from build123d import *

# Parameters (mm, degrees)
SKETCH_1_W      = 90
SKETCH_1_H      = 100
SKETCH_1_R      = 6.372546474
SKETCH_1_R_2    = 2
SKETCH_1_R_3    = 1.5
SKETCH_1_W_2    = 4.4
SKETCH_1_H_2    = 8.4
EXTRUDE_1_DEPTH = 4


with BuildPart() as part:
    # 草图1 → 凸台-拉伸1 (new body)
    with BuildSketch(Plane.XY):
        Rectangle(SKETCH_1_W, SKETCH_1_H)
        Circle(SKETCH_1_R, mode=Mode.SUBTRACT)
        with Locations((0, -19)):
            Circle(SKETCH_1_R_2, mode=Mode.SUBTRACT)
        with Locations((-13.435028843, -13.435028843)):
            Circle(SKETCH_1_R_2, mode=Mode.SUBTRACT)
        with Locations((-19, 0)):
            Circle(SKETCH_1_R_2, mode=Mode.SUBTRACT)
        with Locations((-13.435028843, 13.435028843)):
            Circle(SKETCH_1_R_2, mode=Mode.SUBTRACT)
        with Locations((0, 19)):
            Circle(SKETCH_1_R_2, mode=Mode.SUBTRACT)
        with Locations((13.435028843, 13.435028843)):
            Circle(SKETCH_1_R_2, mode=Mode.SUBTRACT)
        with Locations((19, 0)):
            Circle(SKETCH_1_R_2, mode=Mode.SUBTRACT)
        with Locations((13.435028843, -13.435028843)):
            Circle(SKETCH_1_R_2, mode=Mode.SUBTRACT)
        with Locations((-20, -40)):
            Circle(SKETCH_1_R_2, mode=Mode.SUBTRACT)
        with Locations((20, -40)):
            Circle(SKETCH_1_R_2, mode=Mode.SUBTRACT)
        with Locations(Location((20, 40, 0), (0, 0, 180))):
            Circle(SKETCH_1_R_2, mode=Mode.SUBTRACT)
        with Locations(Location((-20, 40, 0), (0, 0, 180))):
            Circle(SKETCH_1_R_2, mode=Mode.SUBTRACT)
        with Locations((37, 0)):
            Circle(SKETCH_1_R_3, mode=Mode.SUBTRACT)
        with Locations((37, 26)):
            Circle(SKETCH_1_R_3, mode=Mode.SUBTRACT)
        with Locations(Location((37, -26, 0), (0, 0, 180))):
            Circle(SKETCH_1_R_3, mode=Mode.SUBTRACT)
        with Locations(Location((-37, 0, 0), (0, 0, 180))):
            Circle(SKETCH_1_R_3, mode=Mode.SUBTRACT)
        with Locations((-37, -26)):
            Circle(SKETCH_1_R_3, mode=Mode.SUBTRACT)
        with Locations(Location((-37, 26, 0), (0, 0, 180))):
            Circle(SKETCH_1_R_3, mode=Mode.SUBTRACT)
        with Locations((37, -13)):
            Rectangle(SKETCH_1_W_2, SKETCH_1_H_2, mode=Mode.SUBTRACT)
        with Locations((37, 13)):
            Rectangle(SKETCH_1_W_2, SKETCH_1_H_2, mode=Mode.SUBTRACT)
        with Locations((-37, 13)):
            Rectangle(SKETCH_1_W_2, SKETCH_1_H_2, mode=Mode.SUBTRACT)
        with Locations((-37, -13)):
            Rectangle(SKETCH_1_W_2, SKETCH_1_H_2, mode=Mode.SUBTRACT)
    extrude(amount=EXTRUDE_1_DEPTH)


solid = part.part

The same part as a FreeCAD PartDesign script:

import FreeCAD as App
import Part
import Sketcher
from FreeCAD import Vector

doc = App.newDocument("Part")
body = doc.addObject("PartDesign::Body", "Body")

# Sketch on XY plane
sketch1 = doc.addObject("Sketcher::SketchObject", "Sketch")
body.addObject(sketch1)
sketch1.AttachmentSupport = (doc.XY_Plane, [""])
sketch1.MapMode = "FlatFace"
sketch1.addGeometry(Part.LineSegment(Vector(-45, 50, 0), Vector(-45, -50, 0)), False)
sketch1.addGeometry(Part.LineSegment(Vector(-45, -50, 0), Vector(45, -50, 0)), False)
sketch1.addGeometry(Part.LineSegment(Vector(45, -50, 0), Vector(45, 50, 0)), False)
sketch1.addGeometry(Part.LineSegment(Vector(45, 50, 0), Vector(-45, 50, 0)), False)
sketch1.addGeometry(Part.Circle(Vector(-20, -40, 0), Vector(0, 0, 1), 2), False)
sketch1.addGeometry(Part.Circle(Vector(-37, -26, 0), Vector(0, 0, 1), 1.5), False)
sketch1.addGeometry(Part.LineSegment(Vector(-34.8, -17.2, 0), Vector(-39.2, -17.2, 0)), False)
sketch1.addGeometry(Part.LineSegment(Vector(-39.2, -17.2, 0), Vector(-39.2, -8.8, 0)), False)
sketch1.addGeometry(Part.LineSegment(Vector(-39.2, -8.8, 0), Vector(-34.8, -8.8, 0)), False)
sketch1.addGeometry(Part.LineSegment(Vector(-34.8, -8.8, 0), Vector(-34.8, -17.2, 0)), False)
sketch1.addGeometry(Part.Circle(Vector(-13.435029, -13.435029, 0), Vector(0, 0, 1), 2), False)
sketch1.addGeometry(Part.Circle(Vector(20, -40, 0), Vector(0, 0, 1), 2), False)
sketch1.addGeometry(Part.Circle(Vector(37, -26, 0), Vector(0, 0, 1), 1.5), False)
sketch1.addGeometry(Part.Circle(Vector(0, -19, 0), Vector(0, 0, 1), 2), False)
sketch1.addGeometry(Part.Circle(Vector(13.435029, -13.435029, 0), Vector(0, 0, 1), 2), False)
sketch1.addGeometry(Part.LineSegment(Vector(39.2, -17.2, 0), Vector(34.8, -17.2, 0)), False)
sketch1.addGeometry(Part.LineSegment(Vector(34.8, -17.2, 0), Vector(34.8, -8.8, 0)), False)
sketch1.addGeometry(Part.LineSegment(Vector(34.8, -8.8, 0), Vector(39.2, -8.8, 0)), False)
sketch1.addGeometry(Part.LineSegment(Vector(39.2, -8.8, 0), Vector(39.2, -17.2, 0)), False)
sketch1.addGeometry(Part.Circle(Vector(-37, 0, 0), Vector(0, 0, 1), 1.5), False)
sketch1.addGeometry(Part.LineSegment(Vector(-34.8, 8.8, 0), Vector(-39.2, 8.8, 0)), False)
sketch1.addGeometry(Part.LineSegment(Vector(-39.2, 8.8, 0), Vector(-39.2, 17.2, 0)), False)
sketch1.addGeometry(Part.LineSegment(Vector(-39.2, 17.2, 0), Vector(-34.8, 17.2, 0)), False)
sketch1.addGeometry(Part.LineSegment(Vector(-34.8, 17.2, 0), Vector(-34.8, 8.8, 0)), False)
sketch1.addGeometry(Part.Circle(Vector(-19, 0, 0), Vector(0, 0, 1), 2), False)
sketch1.addGeometry(Part.Circle(Vector(-13.435029, 13.435029, 0), Vector(0, 0, 1), 2), False)
sketch1.addGeometry(Part.Circle(Vector(-37, 26, 0), Vector(0, 0, 1), 1.5), False)
sketch1.addGeometry(Part.Circle(Vector(-20, 40, 0), Vector(0, 0, 1), 2), False)
sketch1.addGeometry(Part.Circle(Vector(0, 0, 0), Vector(0, 0, 1), 6.372546), False)
sketch1.addGeometry(Part.Circle(Vector(19, 0, 0), Vector(0, 0, 1), 2), False)
sketch1.addGeometry(Part.Circle(Vector(0, 19, 0), Vector(0, 0, 1), 2), False)
sketch1.addGeometry(Part.Circle(Vector(13.435029, 13.435029, 0), Vector(0, 0, 1), 2), False)
sketch1.addGeometry(Part.Circle(Vector(37, 0, 0), Vector(0, 0, 1), 1.5), False)
sketch1.addGeometry(Part.LineSegment(Vector(39.2, 8.8, 0), Vector(34.8, 8.8, 0)), False)
sketch1.addGeometry(Part.LineSegment(Vector(34.8, 8.8, 0), Vector(34.8, 17.2, 0)), False)
sketch1.addGeometry(Part.LineSegment(Vector(34.8, 17.2, 0), Vector(39.2, 17.2, 0)), False)
sketch1.addGeometry(Part.LineSegment(Vector(39.2, 17.2, 0), Vector(39.2, 8.8, 0)), False)
sketch1.addGeometry(Part.Circle(Vector(37, 26, 0), Vector(0, 0, 1), 1.5), False)
sketch1.addGeometry(Part.Circle(Vector(20, 40, 0), Vector(0, 0, 1), 2), False)
sketch1.addConstraint(Sketcher.Constraint("Coincident", 0, 2, 1, 1))
sketch1.addConstraint(Sketcher.Constraint("Coincident", 1, 2, 2, 1))
sketch1.addConstraint(Sketcher.Constraint("Coincident", 2, 2, 3, 1))
sketch1.addConstraint(Sketcher.Constraint("Coincident", 3, 2, 0, 1))
sketch1.addConstraint(Sketcher.Constraint("Coincident", 6, 2, 7, 1))
sketch1.addConstraint(Sketcher.Constraint("Coincident", 7, 2, 8, 1))
sketch1.addConstraint(Sketcher.Constraint("Coincident", 8, 2, 9, 1))
sketch1.addConstraint(Sketcher.Constraint("Coincident", 9, 2, 6, 1))
sketch1.addConstraint(Sketcher.Constraint("Coincident", 15, 2, 16, 1))
sketch1.addConstraint(Sketcher.Constraint("Coincident", 16, 2, 17, 1))
sketch1.addConstraint(Sketcher.Constraint("Coincident", 17, 2, 18, 1))
sketch1.addConstraint(Sketcher.Constraint("Coincident", 18, 2, 15, 1))
sketch1.addConstraint(Sketcher.Constraint("Coincident", 20, 2, 21, 1))
sketch1.addConstraint(Sketcher.Constraint("Coincident", 21, 2, 22, 1))
sketch1.addConstraint(Sketcher.Constraint("Coincident", 22, 2, 23, 1))
sketch1.addConstraint(Sketcher.Constraint("Coincident", 23, 2, 20, 1))
sketch1.addConstraint(Sketcher.Constraint("Coincident", 33, 2, 34, 1))
sketch1.addConstraint(Sketcher.Constraint("Coincident", 34, 2, 35, 1))
sketch1.addConstraint(Sketcher.Constraint("Coincident", 35, 2, 36, 1))
sketch1.addConstraint(Sketcher.Constraint("Coincident", 36, 2, 33, 1))
sketch1.addConstraint(Sketcher.Constraint("Vertical", 0))
sketch1.addConstraint(Sketcher.Constraint("Horizontal", 1))
sketch1.addConstraint(Sketcher.Constraint("Vertical", 2))
sketch1.addConstraint(Sketcher.Constraint("Horizontal", 3))
sketch1.addConstraint(Sketcher.Constraint("Horizontal", 6))
sketch1.addConstraint(Sketcher.Constraint("Vertical", 7))
sketch1.addConstraint(Sketcher.Constraint("Horizontal", 8))
sketch1.addConstraint(Sketcher.Constraint("Vertical", 9))
sketch1.addConstraint(Sketcher.Constraint("Horizontal", 15))
sketch1.addConstraint(Sketcher.Constraint("Vertical", 16))
sketch1.addConstraint(Sketcher.Constraint("Horizontal", 17))
sketch1.addConstraint(Sketcher.Constraint("Vertical", 18))
sketch1.addConstraint(Sketcher.Constraint("Horizontal", 20))
sketch1.addConstraint(Sketcher.Constraint("Vertical", 21))
sketch1.addConstraint(Sketcher.Constraint("Horizontal", 22))
sketch1.addConstraint(Sketcher.Constraint("Vertical", 23))
sketch1.addConstraint(Sketcher.Constraint("Horizontal", 33))
sketch1.addConstraint(Sketcher.Constraint("Vertical", 34))
sketch1.addConstraint(Sketcher.Constraint("Horizontal", 35))
sketch1.addConstraint(Sketcher.Constraint("Vertical", 36))
sketch1.addConstraint(Sketcher.Constraint("Coincident", 28, 3, -1, 1))
sketch1.addConstraint(Sketcher.Constraint("Equal", 4, 10))
sketch1.addConstraint(Sketcher.Constraint("Equal", 10, 11))
sketch1.addConstraint(Sketcher.Constraint("Equal", 5, 12))
sketch1.addConstraint(Sketcher.Constraint("Equal", 11, 13))
sketch1.addConstraint(Sketcher.Constraint("Equal", 13, 14))
sketch1.addConstraint(Sketcher.Constraint("Equal", 12, 19))
sketch1.addConstraint(Sketcher.Constraint("Equal", 14, 24))
sketch1.addConstraint(Sketcher.Constraint("Equal", 24, 25))
sketch1.addConstraint(Sketcher.Constraint("Equal", 19, 26))
sketch1.addConstraint(Sketcher.Constraint("Equal", 25, 27))
sketch1.addConstraint(Sketcher.Constraint("Equal", 27, 29))
sketch1.addConstraint(Sketcher.Constraint("Equal", 29, 30))
sketch1.addConstraint(Sketcher.Constraint("Equal", 30, 31))
sketch1.addConstraint(Sketcher.Constraint("Equal", 26, 32))
sketch1.addConstraint(Sketcher.Constraint("Equal", 32, 37))
sketch1.addConstraint(Sketcher.Constraint("Equal", 31, 38))
sketch1.addConstraint(Sketcher.Constraint("Symmetric", 14, 3, 25, 3, -1, 1))
sketch1.addConstraint(Sketcher.Constraint("Symmetric", 12, 3, 26, 3, -1, 1))
sketch1.addConstraint(Sketcher.Constraint("Symmetric", 11, 3, 27, 3, -1, 1))
sketch1.addConstraint(Sketcher.Constraint("Symmetric", 24, 3, 29, 3, -1, 1))
sketch1.addConstraint(Sketcher.Constraint("Symmetric", 13, 3, 30, 3, -1, 1))
sketch1.addConstraint(Sketcher.Constraint("Symmetric", 10, 3, 31, 3, -1, 1))
sketch1.addConstraint(Sketcher.Constraint("Symmetric", 19, 3, 32, 3, -1, 1))
sketch1.addConstraint(Sketcher.Constraint("Symmetric", 5, 3, 37, 3, -1, 1))
sketch1.addConstraint(Sketcher.Constraint("Symmetric", 4, 3, 38, 3, -1, 1))
sketch1.addConstraint(Sketcher.Constraint("Symmetric", 0, 2, 2, 2, -1, 1))
sketch1.addConstraint(Sketcher.Constraint("Symmetric", 17, 2, 20, 2, -1, 1))
sketch1.addConstraint(Sketcher.Constraint("Symmetric", 15, 2, 22, 2, -1, 1))
sketch1.addConstraint(Sketcher.Constraint("Symmetric", 8, 2, 33, 2, -1, 1))
sketch1.addConstraint(Sketcher.Constraint("Symmetric", 6, 2, 35, 2, -1, 1))
sketch1.addConstraint(Sketcher.Constraint("Symmetric", 4, 3, 11, 3, -2))
sketch1.addConstraint(Sketcher.Constraint("Symmetric", 5, 3, 12, 3, -2))
sketch1.addConstraint(Sketcher.Constraint("Symmetric", 10, 3, 14, 3, -2))
sketch1.addConstraint(Sketcher.Constraint("Symmetric", 9, 2, 15, 2, -2))
sketch1.addConstraint(Sketcher.Constraint("Symmetric", 7, 2, 17, 2, -2))
sketch1.addConstraint(Sketcher.Constraint("PointOnObject", 13, 3, -2))
sketch1.addConstraint(Sketcher.Constraint("PointOnObject", 19, 3, -1))
sketch1.addConstraint(Sketcher.Constraint("PointOnObject", 24, 3, -1))
sketch1.addConstraint(Sketcher.Constraint("Vertical", 5, 3, 19, 3))
sketch1.addConstraint(Sketcher.Constraint("Diameter", 4, 4.0))
sketch1.addConstraint(Sketcher.Constraint("Diameter", 5, 3.0))
sketch1.addConstraint(Sketcher.Constraint("DistanceX", 1, 1, 1, 2, 90.0))
sketch1.addConstraint(Sketcher.Constraint("DistanceY", 0, 2, 0, 1, 100.0))
sketch1.addConstraint(Sketcher.Constraint("DistanceX", 6, 2, 6, 1, 4.4))
sketch1.addConstraint(Sketcher.Constraint("DistanceY", 7, 1, 7, 2, 8.4))
sketch1.addConstraint(Sketcher.Constraint("DistanceX", 4, 3, -1, 1, 20.0))
sketch1.addConstraint(Sketcher.Constraint("DistanceY", 4, 3, -1, 1, 40.0))
sketch1.addConstraint(Sketcher.Constraint("DistanceX", 5, 3, -1, 1, 37.0))
sketch1.addConstraint(Sketcher.Constraint("DistanceY", 5, 3, -1, 1, 26.0))
sketch1.addConstraint(Sketcher.Constraint("DistanceY", 13, 3, -1, 1, 19.0))
sketch1.addConstraint(Sketcher.Constraint("DistanceX", 24, 3, -1, 1, 19.0))
sketch1.addConstraint(Sketcher.Constraint("DistanceY", 7, 2, 21, 2, 26.0))
sketch1.addConstraint(Sketcher.Constraint("DistanceX", 6, 2, -1, 1, 39.2))
sketch1.addConstraint(Sketcher.Constraint("Diameter", 28, 12.745093))
sketch1.addConstraint(Sketcher.Constraint("DistanceX", 10, 3, -1, 1, 13.435029))
sketch1.addConstraint(Sketcher.Constraint("DistanceY", 10, 3, -1, 1, 13.435029))
pad1 = doc.addObject("PartDesign::Pad", "Pad")
body.addObject(pad1)
pad1.Profile = sketch1
pad1.Length = 4

doc.recompute()
